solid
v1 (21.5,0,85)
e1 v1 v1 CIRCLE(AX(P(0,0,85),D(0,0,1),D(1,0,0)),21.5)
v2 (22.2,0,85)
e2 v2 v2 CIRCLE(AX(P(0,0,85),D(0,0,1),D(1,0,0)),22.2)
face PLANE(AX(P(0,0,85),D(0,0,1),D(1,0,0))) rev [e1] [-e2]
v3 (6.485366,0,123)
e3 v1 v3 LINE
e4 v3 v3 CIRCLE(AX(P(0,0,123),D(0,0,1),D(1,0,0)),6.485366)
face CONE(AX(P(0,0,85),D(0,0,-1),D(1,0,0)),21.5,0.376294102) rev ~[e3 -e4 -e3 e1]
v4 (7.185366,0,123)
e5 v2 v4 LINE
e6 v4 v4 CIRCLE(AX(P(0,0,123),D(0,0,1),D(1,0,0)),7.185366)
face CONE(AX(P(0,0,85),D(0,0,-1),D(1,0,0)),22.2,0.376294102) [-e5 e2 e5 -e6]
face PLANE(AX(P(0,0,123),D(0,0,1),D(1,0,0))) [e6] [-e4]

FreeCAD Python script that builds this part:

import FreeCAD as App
import Part
import Sketcher
from FreeCAD import Vector

doc = App.newDocument("Part")
params = doc.addObject("Spreadsheet::Sheet", "Params")
for row, (alias, value) in enumerate([
    ("sketch1_diameter", "16 mm"),
    ("pad1_length", "3 mm"),
    ("sketch2_height", "41 mm"),
    ("sketch2_width", "21.5 mm"),
    ("sketch2_width2", "5.3 mm"),
    ("revolution_angle", "360 deg"),
    ("sketch3_width", "6 mm"),
    ("sketch3_height", "41 mm"),
    ("sketch3_width2", "22.2 mm"),
    ("revolution2_angle", "360 deg"),
], start=1):
    params.set(f"A{row}", alias)
    params.set(f"B{row}", "=" + value)
    params.setAlias(f"B{row}", alias)

body = doc.addObject("PartDesign::Body", "Body")

sketch1 = body.newObject("Sketcher::SketchObject", "Sketch")
sketch1.AttachmentSupport = (doc.getObject("XY_Plane"), [""])
sketch1.MapMode = "FlatFace"
sketch1.AttachmentOffset = App.Placement(Vector(0, 0, 123), App.Rotation())
sketch1.addGeometry(Part.Circle(Vector(0, 0, 0), Vector(0, 0, 1), 8), False)
sketch1.addConstraint(Sketcher.Constraint("Coincident", 0, 3, -1, 1))
sketch1.addConstraint(Sketcher.Constraint("Diameter", 0, 16.0))
sketch1.setExpression("Constraints[1]", "Params.sketch1_diameter")
pad1 = body.newObject("PartDesign::Pad", "Pad")
pad1.Profile = sketch1
pad1.setExpression("Length", "Params.pad1_length")
body2 = doc.addObject("PartDesign::Body", "Body001")

sketch2 = body2.newObject("Sketcher::SketchObject", "Sketch001")
sketch2.AttachmentSupport = (doc.getObject("XZ_Plane001"), [""])
sketch2.MapMode = "FlatFace"
sketch2.addGeometry(Part.LineSegment(Vector(0, 75, 0), Vector(22, 75, 0)), False)
sketch2.addGeometry(Part.LineSegment(Vector(22, 75, 0), Vector(5, 116, 0)), False)
sketch2.addGeometry(Part.LineSegment(Vector(5, 116, 0), Vector(0, 116, 0)), False)
sketch2.addGeometry(Part.LineSegment(Vector(0, 116, 0), Vector(0, 75, 0)), False)
sketch2.addConstraint(Sketcher.Constraint("Coincident", 0, 2, 1, 1))
sketch2.addConstraint(Sketcher.Constraint("Coincident", 1, 2, 2, 1))
sketch2.addConstraint(Sketcher.Constraint("Coincident", 2, 2, 3, 1))
sketch2.addConstraint(Sketcher.Constraint("Coincident", 3, 2, 0, 1))
sketch2.addConstraint(Sketcher.Constraint("Horizontal", 0))
sketch2.addConstraint(Sketcher.Constraint("Horizontal", 2))
sketch2.addConstraint(Sketcher.Constraint("Vertical", 3))
sketch2.addConstraint(Sketcher.Constraint("PointOnObject", 2, 2, -2))
sketch2.addConstraint(Sketcher.Constraint("DistanceY", 3, 2, 3, 1, 41.0))
sketch2.addConstraint(Sketcher.Constraint("DistanceX", 0, 1, 0, 2, 21.5))
sketch2.addConstraint(Sketcher.Constraint("DistanceX", 2, 2, 2, 1, 5.3))
sketch2.addConstraint(Sketcher.Constraint("DistanceY", -1, 1, 0, 2, 75.0))
sketch2.setExpression("Constraints[8]", "Params.sketch2_height")
sketch2.setExpression("Constraints[9]", "Params.sketch2_width")
sketch2.setExpression("Constraints[10]", "Params.sketch2_width2")
revolution = body2.newObject("PartDesign::Revolution", "Revolution")
revolution.Profile = sketch2
revolution.ReferenceAxis = (sketch2, ["V_Axis"])
revolution.setExpression("Angle", "Params.revolution_angle")
body3 = doc.addObject("PartDesign::Body", "Body002")

sketch3 = body3.newObject("Sketcher::SketchObject", "Sketch002")
sketch3.AttachmentSupport = (doc.getObject("XZ_Plane002"), [""])
sketch3.MapMode = "FlatFace"
sketch3.addGeometry(Part.LineSegment(Vector(0, 75, 0), Vector(22, 75, 0)), False)
sketch3.addGeometry(Part.LineSegment(Vector(22, 75, 0), Vector(6, 116, 0)), False)
sketch3.addGeometry(Part.LineSegment(Vector(6, 116, 0), Vector(0, 116, 0)), False)
sketch3.addGeometry(Part.LineSegment(Vector(0, 116, 0), Vector(0, 75, 0)), False)
sketch3.addConstraint(Sketcher.Constraint("Coincident", 0, 2, 1, 1))
sketch3.addConstraint(Sketcher.Constraint("Coincident", 1, 2, 2, 1))
sketch3.addConstraint(Sketcher.Constraint("Coincident", 2, 2, 3, 1))
sketch3.addConstraint(Sketcher.Constraint("Coincident", 3, 2, 0, 1))
sketch3.addConstraint(Sketcher.Constraint("Horizontal", 0))
sketch3.addConstraint(Sketcher.Constraint("Horizontal", 2))
sketch3.addConstraint(Sketcher.Constraint("Vertical", 3))
sketch3.addConstraint(Sketcher.Constraint("PointOnObject", 2, 2, -2))
sketch3.addConstraint(Sketcher.Constraint("DistanceX", 2, 2, 2, 1, 6.0))
sketch3.addConstraint(Sketcher.Constraint("DistanceY", 3, 2, 3, 1, 41.0))
sketch3.addConstraint(Sketcher.Constraint("DistanceX", 0, 1, 0, 2, 22.2))
sketch3.addConstraint(Sketcher.Constraint("DistanceY", -1, 1, 0, 2, 75.0))
sketch3.setExpression("Constraints[8]", "Params.sketch3_width")
sketch3.setExpression("Constraints[9]", "Params.sketch3_height")
sketch3.setExpression("Constraints[10]", "Params.sketch3_width2")
revolution2 = body3.newObject("PartDesign::Revolution", "Revolution001")
revolution2.Profile = sketch3
revolution2.ReferenceAxis = (sketch3, ["V_Axis"])
revolution2.setExpression("Angle", "Params.revolution2_angle")
doc.recompute()

boolean = body3.newObject("PartDesign::Boolean", "Boolean")
boolean.Type = "Cut"
boolean.addObjects([body2])
body4 = doc.addObject("PartDesign::Body", "Body003")
doc.recompute()

body3.Placement = App.Placement(Vector(0, 0, 10), App.Rotation(Vector(0, 0, 1), 0))
boolean2 = body4.newObject("PartDesign::Boolean", "Boolean001")
boolean2.Type = "Fuse"
boolean2.addObjects([body3])
doc.recompute()

boolean3 = body4.newObject("PartDesign::Boolean", "Boolean002")
boolean3.Type = "Cut"
boolean3.addObjects([body])

doc.recompute()
